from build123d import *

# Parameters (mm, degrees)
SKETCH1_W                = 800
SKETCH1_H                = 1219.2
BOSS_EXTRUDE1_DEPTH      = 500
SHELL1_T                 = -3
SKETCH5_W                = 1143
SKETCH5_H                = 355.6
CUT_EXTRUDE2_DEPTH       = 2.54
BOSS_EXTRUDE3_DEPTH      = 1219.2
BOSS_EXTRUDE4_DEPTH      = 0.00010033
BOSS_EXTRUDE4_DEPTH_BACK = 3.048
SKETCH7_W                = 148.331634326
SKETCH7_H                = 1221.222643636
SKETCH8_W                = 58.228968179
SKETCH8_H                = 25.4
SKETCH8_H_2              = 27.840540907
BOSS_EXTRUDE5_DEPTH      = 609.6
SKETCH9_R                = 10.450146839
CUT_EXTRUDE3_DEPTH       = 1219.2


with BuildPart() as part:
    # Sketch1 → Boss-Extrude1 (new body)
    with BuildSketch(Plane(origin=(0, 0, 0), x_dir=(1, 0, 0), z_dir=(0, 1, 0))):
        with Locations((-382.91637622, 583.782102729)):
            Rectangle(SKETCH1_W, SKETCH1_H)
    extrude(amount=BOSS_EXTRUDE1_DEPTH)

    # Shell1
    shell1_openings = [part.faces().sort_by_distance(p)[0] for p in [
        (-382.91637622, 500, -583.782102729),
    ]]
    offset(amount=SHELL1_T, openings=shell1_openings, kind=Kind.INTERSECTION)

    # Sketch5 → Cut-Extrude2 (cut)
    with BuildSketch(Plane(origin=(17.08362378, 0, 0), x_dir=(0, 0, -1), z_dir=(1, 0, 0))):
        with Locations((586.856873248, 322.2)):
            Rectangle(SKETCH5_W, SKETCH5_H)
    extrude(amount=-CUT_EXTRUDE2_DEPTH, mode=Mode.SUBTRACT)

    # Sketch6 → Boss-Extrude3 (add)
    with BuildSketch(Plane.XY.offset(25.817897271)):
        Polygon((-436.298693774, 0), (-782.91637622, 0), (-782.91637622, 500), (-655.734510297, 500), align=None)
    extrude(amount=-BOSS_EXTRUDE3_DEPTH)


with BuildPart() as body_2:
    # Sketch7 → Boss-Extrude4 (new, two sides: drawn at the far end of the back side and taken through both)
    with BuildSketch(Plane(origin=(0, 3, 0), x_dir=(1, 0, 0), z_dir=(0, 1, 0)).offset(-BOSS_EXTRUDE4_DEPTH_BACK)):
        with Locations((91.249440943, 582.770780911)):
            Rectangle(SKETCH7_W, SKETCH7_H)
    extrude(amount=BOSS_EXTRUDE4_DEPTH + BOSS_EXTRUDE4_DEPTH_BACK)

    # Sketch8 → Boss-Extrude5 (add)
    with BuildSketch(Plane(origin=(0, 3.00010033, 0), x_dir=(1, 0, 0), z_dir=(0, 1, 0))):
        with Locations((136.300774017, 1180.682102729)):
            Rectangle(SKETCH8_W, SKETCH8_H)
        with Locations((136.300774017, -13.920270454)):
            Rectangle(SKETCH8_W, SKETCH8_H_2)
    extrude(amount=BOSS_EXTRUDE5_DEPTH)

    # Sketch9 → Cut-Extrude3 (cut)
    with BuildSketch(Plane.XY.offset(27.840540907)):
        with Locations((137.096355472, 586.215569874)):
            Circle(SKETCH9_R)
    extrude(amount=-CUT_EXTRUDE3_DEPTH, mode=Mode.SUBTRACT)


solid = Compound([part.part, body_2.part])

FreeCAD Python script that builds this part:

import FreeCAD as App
import Part
import Sketcher
from FreeCAD import Vector
Q = App.Units.Quantity


def faces_at(feature, points):
    """Names of the faces that lie closest to the given points."""
    faces = feature.Shape.Faces
    near = lambda p: min(range(len(faces)), key=lambda i: faces[i].distToShape(Part.Vertex(*p))[0])
    return sorted({f"Face{near(p) + 1}" for p in points})


def add_polygon(sketch, points):
    """Adds a closed chain of lines whose ends are joined by coincident constraints."""
    first, n = sketch.GeometryCount, len(points)
    for a, b in zip(points, points[1:] + points[:1]):
        sketch.addGeometry(Part.LineSegment(App.Vector(*a, 0), App.Vector(*b, 0)), False)
    for i in range(n):
        sketch.addConstraint(Sketcher.Constraint("Coincident", first + i, 2, first + (i + 1) % n, 1))

doc = App.newDocument("Part")
params = doc.addObject("Spreadsheet::Sheet", "Params")
for row, (alias, value) in enumerate([
    ("sketch1_height", "48 in"),
    ("pad1_length", "500 mm"),
    ("thickness_wall", "3 mm"),
    ("sketch2_width", "14 in"),
    ("sketch2_height", "45 in"),
    ("pocket1_length", "0.1 in"),
    ("pad2_length", "48 in"),
    ("pad3_length", "0.0001 mm"),
    ("pad3_length2", "0.12 in"),
    ("sketch5_height", "1 in"),
    ("pad4_length", "24 in"),
    ("pocket2_length", "48 in"),
], start=1):
    params.set(f"A{row}", alias)
    params.set(f"B{row}", "=" + value)
    params.setAlias(f"B{row}", alias)

body = doc.addObject("PartDesign::Body", "Body")

# Sketch on XZ plane
sketch1 = doc.addObject("Sketcher::SketchObject", "Sketch")
body.addObject(sketch1)
sketch1.AttachmentSupport = (doc.XZ_Plane, [""])
sketch1.MapMode = "FlatFace"
add_polygon(sketch1, [(-783, -1193), (-783, 26), (17, 26), (17, -1193)])  # lines 0-3
sketch1.addConstraint([
    Sketcher.Constraint("Vertical", 0),
    Sketcher.Constraint("Horizontal", 1),
    Sketcher.Constraint("Vertical", 2),
    Sketcher.Constraint("Horizontal", 3),
    Sketcher.Constraint("DistanceY", 0, 1, 0, 2, Q("48 in")),
    Sketcher.Constraint("DistanceX", 1, 1, 1, 2, Q("800 mm")),
    Sketcher.Constraint("DistanceX", 0, 2, -1, 1, Q("782.916376 mm")),
    Sketcher.Constraint("DistanceY", -1, 1, 0, 2, Q("25.817897 mm")),
])
sketch1.setExpression("Constraints[8]", "Params.sketch1_height")
pad1 = doc.addObject("PartDesign::Pad", "Pad")
body.addObject(pad1)
pad1.Profile = sketch1
pad1.setExpression("Length", "Params.pad1_length")
pad1.Reversed = True
doc.recompute()

thickness = doc.addObject("PartDesign::Thickness", "Thickness")
body.addObject(thickness)
thickness.Base = (pad1, faces_at(pad1, [(-382.916, 500, -583.782)]))
thickness.setExpression("Value", "Params.thickness_wall")
thickness.Reversed = True
thickness.Join = "Intersection"

# Sketch on YZ plane
sketch2 = doc.addObject("Sketcher::SketchObject", "Sketch001")
body.addObject(sketch2)
sketch2.AttachmentSupport = (doc.YZ_Plane, [""])
sketch2.MapMode = "FlatFace"
sketch2.AttachmentOffset = App.Placement(Vector(0, 0, 17.083624), App.Rotation())
add_polygon(sketch2, [(500, -15), (144, -15), (144, -1158), (500, -1158)])  # lines 0-3
sketch2.addConstraint([
    Sketcher.Constraint("Horizontal", 0),
    Sketcher.Constraint("Vertical", 1),
    Sketcher.Constraint("Horizontal", 2),
    Sketcher.Constraint("Vertical", 3),
    Sketcher.Constraint("DistanceX", 0, 2, 0, 1, Q("14 in")),
    Sketcher.Constraint("DistanceY", 1, 2, 1, 1, Q("45 in")),
    Sketcher.Constraint("DistanceX", -1, 1, 0, 2, Q("144.4 mm")),
    Sketcher.Constraint("DistanceY", 0, 2, -1, 1, Q("15.356873 mm")),
])
sketch2.setExpression("Constraints[8]", "Params.sketch2_width")
sketch2.setExpression("Constraints[9]", "Params.sketch2_height")
pocket1 = doc.addObject("PartDesign::Pocket", "Pocket")
body.addObject(pocket1)
pocket1.Profile = sketch2
pocket1.setExpression("Length", "Params.pocket1_length")

# Sketch on XY plane
sketch3 = doc.addObject("Sketcher::SketchObject", "Sketch002")
body.addObject(sketch3)
sketch3.AttachmentSupport = (doc.XY_Plane, [""])
sketch3.MapMode = "FlatFace"
sketch3.AttachmentOffset = App.Placement(Vector(0, 0, 25.817897), App.Rotation())
add_polygon(sketch3, [(-783, 0), (-436, 0), (-656, 500), (-783, 500)])  # lines 0-3
sketch3.addConstraint([
    Sketcher.Constraint("Horizontal", 0),
    Sketcher.Constraint("Horizontal", 2),
    Sketcher.Constraint("Vertical", 3),
    Sketcher.Constraint("PointOnObject", 0, 2, -1),
    Sketcher.Constraint("DistanceY", 3, 2, 3, 1, Q("500 mm")),
    Sketcher.Constraint("DistanceX", 0, 1, 0, 2, Q("346.617682 mm")),
    Sketcher.Constraint("DistanceX", 2, 2, 2, 1, Q("127.181866 mm")),
    Sketcher.Constraint("DistanceX", 1, 2, -1, 1, Q("655.73451 mm")),
])
pad2 = doc.addObject("PartDesign::Pad", "Pad001")
body.addObject(pad2)
pad2.Profile = sketch3
pad2.setExpression("Length", "Params.pad2_length")
pad2.Reversed = True
body2 = doc.addObject("PartDesign::Body", "Body001")

# Sketch on XZ plane
sketch4 = doc.addObject("Sketcher::SketchObject", "Sketch003")
body2.addObject(sketch4)
sketch4.AttachmentSupport = (doc.getObject("XZ_Plane001"), [""])
sketch4.MapMode = "FlatFace"
sketch4.AttachmentOffset = App.Placement(Vector(0, 0, -3), App.Rotation())
add_polygon(sketch4, [(17, -1193), (17, 28), (165, 28), (165, -1193)])  # lines 0-3
sketch4.addConstraint([
    Sketcher.Constraint("Vertical", 0),
    Sketcher.Constraint("Horizontal", 1),
    Sketcher.Constraint("Vertical", 2),
    Sketcher.Constraint("Horizontal", 3),
    Sketcher.Constraint("DistanceX", 1, 1, 1, 2, Q("148.331634 mm")),
    Sketcher.Constraint("DistanceY", 0, 1, 0, 2, Q("1221.222644 mm")),
    Sketcher.Constraint("DistanceY", -1, 1, 0, 2, Q("27.840541 mm")),
    Sketcher.Constraint("DistanceX", -1, 1, 1, 2, Q("165.415258 mm")),
])
pad3 = doc.addObject("PartDesign::Pad", "Pad002")
body2.addObject(pad3)
pad3.Profile = sketch4
pad3.Type = "TwoLengths"
pad3.setExpression("Length", "Params.pad3_length")
pad3.setExpression("Length2", "Params.pad3_length2")
pad3.Reversed = True

# Sketch on XZ plane
sketch5 = doc.addObject("Sketcher::SketchObject", "Sketch004")
body2.addObject(sketch5)
sketch5.AttachmentSupport = (doc.getObject("XZ_Plane001"), [""])
sketch5.MapMode = "FlatFace"
sketch5.AttachmentOffset = App.Placement(Vector(0, 0, -3.0001), App.Rotation())
add_polygon(sketch5, [(107, -1193), (107, -1168), (165, -1168), (165, -1193)])  # lines 0-3
add_polygon(sketch5, [(107, 0), (107, 28), (165, 28), (165, 0)])  # lines 4-7
sketch5.addConstraint([
    Sketcher.Constraint("Vertical", 0),
    Sketcher.Constraint("Horizontal", 1),
    Sketcher.Constraint("Vertical", 2),
    Sketcher.Constraint("Horizontal", 3),
    Sketcher.Constraint("Vertical", 4),
    Sketcher.Constraint("Horizontal", 5),
    Sketcher.Constraint("Vertical", 6),
    Sketcher.Constraint("Horizontal", 7),
    Sketcher.Constraint("PointOnObject", 6, 2, -1),
    Sketcher.Constraint("Vertical", 3, 2, 4, 2),
    Sketcher.Constraint("Vertical", 2, 2, 5, 2),
    Sketcher.Constraint("DistanceY", 0, 1, 0, 2, Q("1 in")),
    Sketcher.Constraint("DistanceX", 1, 1, 1, 2, Q("58.228968 mm")),
    Sketcher.Constraint("DistanceY", 4, 1, 4, 2, Q("27.840541 mm")),
    Sketcher.Constraint("DistanceX", -1, 1, 0, 2, Q("107.18629 mm")),
    Sketcher.Constraint("DistanceY", 0, 2, -1, 1, Q("1167.982103 mm")),
])
sketch5.setExpression("Constraints[19]", "Params.sketch5_height")
pad4 = doc.addObject("PartDesign::Pad", "Pad003")
body2.addObject(pad4)
pad4.Profile = sketch5
pad4.setExpression("Length", "Params.pad4_length")
pad4.Reversed = True

# Sketch on XY plane
sketch6 = doc.addObject("Sketcher::SketchObject", "Sketch005")
body2.addObject(sketch6)
sketch6.AttachmentSupport = (doc.getObject("XY_Plane001"), [""])
sketch6.MapMode = "FlatFace"
sketch6.AttachmentOffset = App.Placement(Vector(0, 0, 27.840541), App.Rotation())
sketch6.addGeometry(Part.Circle(Vector(137, 586, 0), Vector(0, 0, 1), 10), False)
sketch6.addConstraint([
    Sketcher.Constraint("Diameter", 0, Q("20.900294 mm")),
    Sketcher.Constraint("DistanceY", -1, 1, 0, 3, Q("586.21557 mm")),
    Sketcher.Constraint("DistanceX", -1, 1, 0, 3, Q("137.096355 mm")),
])
pocket2 = doc.addObject("PartDesign::Pocket", "Pocket001")
body2.addObject(pocket2)
pocket2.Profile = sketch6
pocket2.setExpression("Length", "Params.pocket2_length")

doc.recompute()
